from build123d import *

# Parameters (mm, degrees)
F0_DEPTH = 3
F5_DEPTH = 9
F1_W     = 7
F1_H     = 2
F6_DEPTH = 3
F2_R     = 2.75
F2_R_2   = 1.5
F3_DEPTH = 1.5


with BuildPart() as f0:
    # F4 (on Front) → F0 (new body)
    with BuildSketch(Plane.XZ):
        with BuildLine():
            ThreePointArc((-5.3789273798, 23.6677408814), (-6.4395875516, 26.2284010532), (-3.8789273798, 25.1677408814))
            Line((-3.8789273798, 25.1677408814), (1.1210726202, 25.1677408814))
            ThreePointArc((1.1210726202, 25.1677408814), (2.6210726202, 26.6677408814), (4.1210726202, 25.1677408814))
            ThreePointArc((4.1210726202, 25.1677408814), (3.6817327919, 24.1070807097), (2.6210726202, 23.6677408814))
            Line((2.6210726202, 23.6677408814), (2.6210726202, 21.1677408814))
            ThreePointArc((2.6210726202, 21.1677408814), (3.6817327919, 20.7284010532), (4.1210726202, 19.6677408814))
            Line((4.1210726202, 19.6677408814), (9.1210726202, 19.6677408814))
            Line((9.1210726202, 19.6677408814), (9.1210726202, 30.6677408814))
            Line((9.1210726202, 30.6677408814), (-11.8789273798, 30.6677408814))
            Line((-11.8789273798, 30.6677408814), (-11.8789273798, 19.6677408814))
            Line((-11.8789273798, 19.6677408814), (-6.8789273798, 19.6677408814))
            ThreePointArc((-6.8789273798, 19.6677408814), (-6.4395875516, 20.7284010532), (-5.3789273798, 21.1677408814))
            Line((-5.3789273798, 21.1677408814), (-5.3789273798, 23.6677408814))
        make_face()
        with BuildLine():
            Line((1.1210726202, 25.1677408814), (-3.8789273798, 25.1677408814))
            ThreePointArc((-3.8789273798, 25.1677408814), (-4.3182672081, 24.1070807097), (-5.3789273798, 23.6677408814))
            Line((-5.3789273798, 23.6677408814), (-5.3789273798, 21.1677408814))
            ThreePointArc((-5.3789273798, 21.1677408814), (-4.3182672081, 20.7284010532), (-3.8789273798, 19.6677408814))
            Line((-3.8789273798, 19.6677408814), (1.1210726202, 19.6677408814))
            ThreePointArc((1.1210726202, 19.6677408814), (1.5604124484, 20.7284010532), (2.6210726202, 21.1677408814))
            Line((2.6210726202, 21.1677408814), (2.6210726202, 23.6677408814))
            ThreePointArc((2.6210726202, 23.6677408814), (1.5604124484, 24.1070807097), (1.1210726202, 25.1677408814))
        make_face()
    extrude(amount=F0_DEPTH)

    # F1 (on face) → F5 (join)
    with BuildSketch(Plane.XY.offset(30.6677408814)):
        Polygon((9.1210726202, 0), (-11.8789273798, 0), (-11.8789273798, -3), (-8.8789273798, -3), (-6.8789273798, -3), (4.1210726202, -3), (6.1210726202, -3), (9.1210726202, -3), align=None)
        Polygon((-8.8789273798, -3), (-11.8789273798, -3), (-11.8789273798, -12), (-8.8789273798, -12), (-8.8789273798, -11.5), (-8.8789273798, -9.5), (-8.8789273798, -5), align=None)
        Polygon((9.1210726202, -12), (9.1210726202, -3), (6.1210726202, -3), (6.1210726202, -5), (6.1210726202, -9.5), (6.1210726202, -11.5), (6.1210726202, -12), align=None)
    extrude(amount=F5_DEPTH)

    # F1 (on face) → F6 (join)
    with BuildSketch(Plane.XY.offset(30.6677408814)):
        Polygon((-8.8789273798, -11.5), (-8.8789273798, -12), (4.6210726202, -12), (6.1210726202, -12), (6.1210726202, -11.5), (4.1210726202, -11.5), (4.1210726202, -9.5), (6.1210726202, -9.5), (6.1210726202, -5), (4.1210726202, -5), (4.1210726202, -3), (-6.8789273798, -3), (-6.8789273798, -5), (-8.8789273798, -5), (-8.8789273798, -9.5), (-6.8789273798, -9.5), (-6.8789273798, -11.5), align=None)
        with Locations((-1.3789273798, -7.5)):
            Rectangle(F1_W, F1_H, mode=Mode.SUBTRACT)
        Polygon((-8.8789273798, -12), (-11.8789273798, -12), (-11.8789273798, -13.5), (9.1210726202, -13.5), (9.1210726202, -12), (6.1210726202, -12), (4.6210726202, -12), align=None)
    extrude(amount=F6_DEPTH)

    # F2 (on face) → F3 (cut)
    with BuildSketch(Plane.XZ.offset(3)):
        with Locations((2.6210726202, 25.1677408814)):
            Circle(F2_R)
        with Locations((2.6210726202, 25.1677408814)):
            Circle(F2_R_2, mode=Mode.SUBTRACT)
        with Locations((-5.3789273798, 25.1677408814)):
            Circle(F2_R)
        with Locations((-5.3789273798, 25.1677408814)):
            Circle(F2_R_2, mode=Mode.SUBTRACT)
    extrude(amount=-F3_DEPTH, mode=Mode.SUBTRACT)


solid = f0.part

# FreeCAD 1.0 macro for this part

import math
import FreeCAD as App
import Part
import Sketcher
from FreeCAD import Vector
Q = App.Units.Quantity


def add_polygon(sketch, points):
    """Adds a closed chain of lines whose ends are joined by coincident constraints."""
    first, n = sketch.GeometryCount, len(points)
    for a, b in zip(points, points[1:] + points[:1]):
        sketch.addGeometry(Part.LineSegment(App.Vector(*a, 0), App.Vector(*b, 0)), False)
    for i in range(n):
        sketch.addConstraint(Sketcher.Constraint("Coincident", first + i, 2, first + (i + 1) % n, 1))

doc = App.newDocument("Part")
body = doc.addObject("PartDesign::Body", "Body")

sketch1 = body.newObject("Sketcher::SketchObject", "Sketch")
sketch1.AttachmentSupport = (doc.getObject("XZ_Plane"), [""])
sketch1.MapMode = "FlatFace"
sketch1.addGeometry([
    Part.ArcOfCircle(Part.Circle(Vector(2.6, 19.7, 0), Vector(0, 0, 1), 1.5), math.radians(0), math.radians(90)),
    Part.LineSegment(Vector(4.1, 19.7, 0), Vector(9.1, 19.7, 0)),
    Part.LineSegment(Vector(9.1, 19.7, 0), Vector(9.1, 30.7, 0)),
    Part.LineSegment(Vector(9.1, 30.7, 0), Vector(-11.9, 30.7, 0)),
    Part.LineSegment(Vector(-11.9, 30.7, 0), Vector(-11.9, 19.7, 0)),
    Part.LineSegment(Vector(-11.9, 19.7, 0), Vector(-6.9, 19.7, 0)),
    Part.ArcOfCircle(Part.Circle(Vector(-5.4, 19.7, 0), Vector(0, 0, 1), 1.5), math.radians(90), math.radians(180)),
    Part.ArcOfCircle(Part.Circle(Vector(-5.4, 19.7, 0), Vector(0, 0, 1), 1.5), math.radians(0), math.radians(90)),
    Part.LineSegment(Vector(-3.9, 19.7, 0), Vector(1.1, 19.7, 0)),
    Part.ArcOfCircle(Part.Circle(Vector(2.6, 19.7, 0), Vector(0, 0, 1), 1.5), math.radians(90), math.radians(180)),
    Part.ArcOfCircle(Part.Circle(Vector(-5.4, 25.2, 0), Vector(0, 0, 1), 1.5), math.radians(0), math.radians(270)),
    Part.ArcOfCircle(Part.Circle(Vector(-5.4, 25.2, 0), Vector(0, 0, 1), 1.5), math.radians(-90), math.radians(0)),
    Part.ArcOfCircle(Part.Circle(Vector(2.6, 25.2, 0), Vector(0, 0, 1), 1.5), math.radians(0), math.radians(180)),
    Part.ArcOfCircle(Part.Circle(Vector(2.6, 25.2, 0), Vector(0, 0, 1), 1.5), math.radians(-90), math.radians(0)),
    Part.ArcOfCircle(Part.Circle(Vector(2.6, 25.2, 0), Vector(0, 0, 1), 1.5), math.radians(-180), math.radians(-90)),
], False)
sketch1.addConstraint([
    Sketcher.Constraint("Coincident", 0, 1, 1, 1),
    Sketcher.Constraint("Coincident", 1, 2, 2, 1),
    Sketcher.Constraint("Coincident", 2, 2, 3, 1),
    Sketcher.Constraint("Coincident", 3, 2, 4, 1),
    Sketcher.Constraint("Coincident", 4, 2, 5, 1),
    Sketcher.Constraint("Coincident", 5, 2, 6, 2),
    Sketcher.Constraint("Tangent", 6, 1, 7, 2),
    Sketcher.Constraint("Coincident", 7, 1, 8, 1),
    Sketcher.Constraint("Coincident", 8, 2, 9, 2),
    Sketcher.Constraint("Tangent", 9, 1, 0, 2),
    Sketcher.Constraint("Tangent", 10, 1, 11, 2),
    Sketcher.Constraint("Coincident", 11, 1, 10, 2),
    Sketcher.Constraint("Tangent", 12, 1, 13, 2),
    Sketcher.Constraint("Tangent", 13, 1, 14, 2),
    Sketcher.Constraint("Tangent", 14, 1, 12, 2),
    Sketcher.Constraint("Horizontal", 1),
    Sketcher.Constraint("Vertical", 2),
    Sketcher.Constraint("Horizontal", 3),
    Sketcher.Constraint("Vertical", 4),
    Sketcher.Constraint("Horizontal", 5),
    Sketcher.Constraint("Horizontal", 8),
    Sketcher.Constraint("Equal", 0, 6),
    Sketcher.Constraint("Equal", 6, 7),
    Sketcher.Constraint("Equal", 7, 9),
    Sketcher.Constraint("Equal", 9, 10),
    Sketcher.Constraint("Equal", 11, 12),
    Sketcher.Constraint("Horizontal", 0, 3, 6, 3),
    Sketcher.Constraint("Horizontal", 11, 3, 12, 3),
    Sketcher.Constraint("Horizontal", 9, 3, 0, 1),
    Sketcher.Constraint("Horizontal", 1, 2, 4, 2),
    Sketcher.Constraint("Horizontal", 5, 2, 7, 1),
    Sketcher.Constraint("Horizontal", 14, 3, 10, 1),
    Sketcher.Constraint("Horizontal", 10, 1, 12, 1),
    Sketcher.Constraint("Horizontal", 12, 1, 14, 1),
    Sketcher.Constraint("Vertical", 7, 3, 10, 3),
    Sketcher.Constraint("Vertical", 9, 3, 12, 3),
    Sketcher.Constraint("Vertical", 11, 3, 6, 1),
    Sketcher.Constraint("Vertical", 14, 3, 9, 1),
    Sketcher.Constraint("Vertical", 6, 1, 11, 1),
    Sketcher.Constraint("Vertical", 9, 1, 13, 1),
    Sketcher.Constraint("Equal", 1, 5),
    Sketcher.Constraint("Equal", 5, 8),
    Sketcher.Constraint("Radius", 0, Q("1.5 mm")),
    Sketcher.Constraint("DistanceX", 1, 1, 1, 2, Q("5 mm")),
    Sketcher.Constraint("DistanceY", 2, 1, 2, 2, Q("11 mm")),
    Sketcher.Constraint("DistanceY", 6, 1, 10, 3, Q("4 mm")),
    Sketcher.Constraint("DistanceY", -1, 1, 0, 3, Q("19.667741 mm")),
    Sketcher.Constraint("DistanceX", -1, 1, 0, 3, Q("2.621073 mm")),
])
pad1 = body.newObject("PartDesign::Pad", "Pad")
pad1.Profile = sketch1
pad1.Length = 3

sketch2 = body.newObject("Sketcher::SketchObject", "Sketch001")
sketch2.AttachmentSupport = (doc.getObject("XY_Plane"), [""])
sketch2.MapMode = "FlatFace"
sketch2.AttachmentOffset = App.Placement(Vector(0, 0, 30.667741), App.Rotation())
add_polygon(sketch2, [(9.1, 0), (-11.9, 0), (-11.9, -12), (-8.9, -12), (-8.9, -3), (6.1, -3), (6.1, -12), (9.1, -12)])
sketch2.addConstraint([
    Sketcher.Constraint("Horizontal", 0),
    Sketcher.Constraint("Vertical", 1),
    Sketcher.Constraint("Horizontal", 2),
    Sketcher.Constraint("Vertical", 3),
    Sketcher.Constraint("Horizontal", 4),
    Sketcher.Constraint("Vertical", 5),
    Sketcher.Constraint("Horizontal", 6),
    Sketcher.Constraint("Vertical", 7),
    Sketcher.Constraint("PointOnObject", 0, 2, -1),
    Sketcher.Constraint("Horizontal", 2, 2, 5, 2),
    Sketcher.Constraint("Equal", 2, 6),
    Sketcher.Constraint("DistanceX", 0, 2, 0, 1, Q("21 mm")),
    Sketcher.Constraint("DistanceX", 2, 1, 2, 2, Q("3 mm")),
    Sketcher.Constraint("DistanceY", 1, 2, 1, 1, Q("12 mm")),
    Sketcher.Constraint("DistanceY", 3, 1, 3, 2, Q("9 mm")),
    Sketcher.Constraint("DistanceX", 0, 2, -1, 1, Q("11.878927 mm")),
])
pad2 = body.newObject("PartDesign::Pad", "Pad001")
pad2.Profile = sketch2
pad2.Length = 9

sketch3 = body.newObject("Sketcher::SketchObject", "Sketch002")
sketch3.AttachmentSupport = (doc.getObject("XY_Plane"), [""])
sketch3.MapMode = "FlatFace"
sketch3.AttachmentOffset = App.Placement(Vector(0, 0, 30.667741), App.Rotation())
add_polygon(sketch3, [(-8.9, -11.5), (-8.9, -12), (-11.9, -12), (-11.9, -13.5), (9.1, -13.5), (9.1, -12), (6.1, -12), (6.1, -11.5), (4.1, -11.5), (4.1, -9.5), (6.1, -9.5), (6.1, -5), (4.1, -5), (4.1, -3), (-6.9, -3), (-6.9, -5), (-8.9, -5), (-8.9, -9.5), (-6.9, -9.5), (-6.9, -11.5)])
add_polygon(sketch3, [(2.1, -8.5), (-4.9, -8.5), (-4.9, -6.5), (2.1, -6.5)])
sketch3.addConstraint([
    Sketcher.Constraint("Vertical", 0),
    Sketcher.Constraint("Horizontal", 1),
    Sketcher.Constraint("Vertical", 2),
    Sketcher.Constraint("Horizontal", 3),
    Sketcher.Constraint("Vertical", 4),
    Sketcher.Constraint("Horizontal", 5),
    Sketcher.Constraint("Vertical", 6),
    Sketcher.Constraint("Horizontal", 7),
    Sketcher.Constraint("Vertical", 8),
    Sketcher.Constraint("Horizontal", 9),
    Sketcher.Constraint("Vertical", 10),
    Sketcher.Constraint("Horizontal", 11),
    Sketcher.Constraint("Vertical", 12),
    Sketcher.Constraint("Horizontal", 13),
    Sketcher.Constraint("Vertical", 14),
    Sketcher.Constraint("Horizontal", 15),
    Sketcher.Constraint("Vertical", 16),
    Sketcher.Constraint("Horizontal", 17),
    Sketcher.Constraint("Vertical", 18),
    Sketcher.Constraint("Horizontal", 19),
    Sketcher.Constraint("Horizontal", 20),
    Sketcher.Constraint("Vertical", 21),
    Sketcher.Constraint("Horizontal", 22),
    Sketcher.Constraint("Vertical", 23),
    Sketcher.Constraint("Horizontal", 1, 2, 4, 2),
    Sketcher.Constraint("Horizontal", 11, 2, 14, 2),
    Sketcher.Constraint("Horizontal", 9, 2, 16, 2),
    Sketcher.Constraint("Horizontal", 7, 2, 18, 2),
    Sketcher.Constraint("Vertical", 6, 2, 9, 2),
    Sketcher.Constraint("Vertical", 8, 2, 11, 2),
    Sketcher.Constraint("Vertical", 0, 2, 15, 2),
    Sketcher.Constraint("Vertical", 14, 2, 17, 2),
    Sketcher.Constraint("Equal", 1, 5),
    Sketcher.Constraint("Equal", 11, 15),
    Sketcher.Constraint("Equal", 19, 8),
    Sketcher.Constraint("Equal", 8, 12),
    Sketcher.Constraint("Equal", 18, 21),
    Sketcher.Constraint("DistanceX", 1, 2, 1, 1, Q("3 mm")),
    Sketcher.Constraint("DistanceX", 3, 1, 3, 2, Q("21 mm")),
    Sketcher.Constraint("DistanceX", 7, 2, 7, 1, Q("2 mm")),
    Sketcher.Constraint("DistanceX", 20, 2, 20, 1, Q("7 mm")),
    Sketcher.Constraint("DistanceY", 0, 2, 0, 1, Q("0.5 mm")),
    Sketcher.Constraint("DistanceY", 2, 2, 2, 1, Q("1.5 mm")),
    Sketcher.Constraint("DistanceY", 10, 1, 10, 2, Q("4.5 mm")),
    Sketcher.Constraint("DistanceY", 0, 2, -1, 1, Q("12 mm")),
    Sketcher.Constraint("DistanceX", 17, 2, 20, 2, Q("2 mm")),
    Sketcher.Constraint("DistanceY", 17, 2, 20, 2, Q("1 mm")),
    Sketcher.Constraint("DistanceX", 0, 2, -1, 1, Q("8.878927 mm")),
])
pad3 = body.newObject("PartDesign::Pad", "Pad002")
pad3.Profile = sketch3
pad3.Length = 3

sketch4 = body.newObject("Sketcher::SketchObject", "Sketch003")
sketch4.AttachmentSupport = (doc.getObject("XZ_Plane"), [""])
sketch4.MapMode = "FlatFace"
sketch4.AttachmentOffset = App.Placement(Vector(0, 0, 3), App.Rotation())
sketch4.addGeometry([
    Part.Circle(Vector(2.6, 25.2, 0), Vector(0, 0, 1), 2.8),
    Part.Circle(Vector(2.6, 25.2, 0), Vector(0, 0, 1), 1.5),
    Part.Circle(Vector(-5.4, 25.2, 0), Vector(0, 0, 1), 2.8),
    Part.Circle(Vector(-5.4, 25.2, 0), Vector(0, 0, 1), 1.5),
], False)
sketch4.addConstraint([
    Sketcher.Constraint("Coincident", 1, 3, 0, 3),
    Sketcher.Constraint("Coincident", 3, 3, 2, 3),
    Sketcher.Constraint("Equal", 0, 2),
    Sketcher.Constraint("Equal", 1, 3),
    Sketcher.Constraint("Horizontal", 1, 3, 2, 3),
    Sketcher.Constraint("Diameter", 1, Q("3 mm")),
    Sketcher.Constraint("Diameter", 0, Q("5.5 mm")),
    Sketcher.Constraint("DistanceX", 2, 3, 0, 3, Q("8 mm")),
    Sketcher.Constraint("DistanceY", -1, 1, 0, 3, Q("25.167741 mm")),
    Sketcher.Constraint("DistanceX", -1, 1, 0, 3, Q("2.621073 mm")),
])
pocket1 = body.newObject("PartDesign::Pocket", "Pocket")
pocket1.Profile = sketch4
pocket1.Length = 1.5

doc.recompute()
